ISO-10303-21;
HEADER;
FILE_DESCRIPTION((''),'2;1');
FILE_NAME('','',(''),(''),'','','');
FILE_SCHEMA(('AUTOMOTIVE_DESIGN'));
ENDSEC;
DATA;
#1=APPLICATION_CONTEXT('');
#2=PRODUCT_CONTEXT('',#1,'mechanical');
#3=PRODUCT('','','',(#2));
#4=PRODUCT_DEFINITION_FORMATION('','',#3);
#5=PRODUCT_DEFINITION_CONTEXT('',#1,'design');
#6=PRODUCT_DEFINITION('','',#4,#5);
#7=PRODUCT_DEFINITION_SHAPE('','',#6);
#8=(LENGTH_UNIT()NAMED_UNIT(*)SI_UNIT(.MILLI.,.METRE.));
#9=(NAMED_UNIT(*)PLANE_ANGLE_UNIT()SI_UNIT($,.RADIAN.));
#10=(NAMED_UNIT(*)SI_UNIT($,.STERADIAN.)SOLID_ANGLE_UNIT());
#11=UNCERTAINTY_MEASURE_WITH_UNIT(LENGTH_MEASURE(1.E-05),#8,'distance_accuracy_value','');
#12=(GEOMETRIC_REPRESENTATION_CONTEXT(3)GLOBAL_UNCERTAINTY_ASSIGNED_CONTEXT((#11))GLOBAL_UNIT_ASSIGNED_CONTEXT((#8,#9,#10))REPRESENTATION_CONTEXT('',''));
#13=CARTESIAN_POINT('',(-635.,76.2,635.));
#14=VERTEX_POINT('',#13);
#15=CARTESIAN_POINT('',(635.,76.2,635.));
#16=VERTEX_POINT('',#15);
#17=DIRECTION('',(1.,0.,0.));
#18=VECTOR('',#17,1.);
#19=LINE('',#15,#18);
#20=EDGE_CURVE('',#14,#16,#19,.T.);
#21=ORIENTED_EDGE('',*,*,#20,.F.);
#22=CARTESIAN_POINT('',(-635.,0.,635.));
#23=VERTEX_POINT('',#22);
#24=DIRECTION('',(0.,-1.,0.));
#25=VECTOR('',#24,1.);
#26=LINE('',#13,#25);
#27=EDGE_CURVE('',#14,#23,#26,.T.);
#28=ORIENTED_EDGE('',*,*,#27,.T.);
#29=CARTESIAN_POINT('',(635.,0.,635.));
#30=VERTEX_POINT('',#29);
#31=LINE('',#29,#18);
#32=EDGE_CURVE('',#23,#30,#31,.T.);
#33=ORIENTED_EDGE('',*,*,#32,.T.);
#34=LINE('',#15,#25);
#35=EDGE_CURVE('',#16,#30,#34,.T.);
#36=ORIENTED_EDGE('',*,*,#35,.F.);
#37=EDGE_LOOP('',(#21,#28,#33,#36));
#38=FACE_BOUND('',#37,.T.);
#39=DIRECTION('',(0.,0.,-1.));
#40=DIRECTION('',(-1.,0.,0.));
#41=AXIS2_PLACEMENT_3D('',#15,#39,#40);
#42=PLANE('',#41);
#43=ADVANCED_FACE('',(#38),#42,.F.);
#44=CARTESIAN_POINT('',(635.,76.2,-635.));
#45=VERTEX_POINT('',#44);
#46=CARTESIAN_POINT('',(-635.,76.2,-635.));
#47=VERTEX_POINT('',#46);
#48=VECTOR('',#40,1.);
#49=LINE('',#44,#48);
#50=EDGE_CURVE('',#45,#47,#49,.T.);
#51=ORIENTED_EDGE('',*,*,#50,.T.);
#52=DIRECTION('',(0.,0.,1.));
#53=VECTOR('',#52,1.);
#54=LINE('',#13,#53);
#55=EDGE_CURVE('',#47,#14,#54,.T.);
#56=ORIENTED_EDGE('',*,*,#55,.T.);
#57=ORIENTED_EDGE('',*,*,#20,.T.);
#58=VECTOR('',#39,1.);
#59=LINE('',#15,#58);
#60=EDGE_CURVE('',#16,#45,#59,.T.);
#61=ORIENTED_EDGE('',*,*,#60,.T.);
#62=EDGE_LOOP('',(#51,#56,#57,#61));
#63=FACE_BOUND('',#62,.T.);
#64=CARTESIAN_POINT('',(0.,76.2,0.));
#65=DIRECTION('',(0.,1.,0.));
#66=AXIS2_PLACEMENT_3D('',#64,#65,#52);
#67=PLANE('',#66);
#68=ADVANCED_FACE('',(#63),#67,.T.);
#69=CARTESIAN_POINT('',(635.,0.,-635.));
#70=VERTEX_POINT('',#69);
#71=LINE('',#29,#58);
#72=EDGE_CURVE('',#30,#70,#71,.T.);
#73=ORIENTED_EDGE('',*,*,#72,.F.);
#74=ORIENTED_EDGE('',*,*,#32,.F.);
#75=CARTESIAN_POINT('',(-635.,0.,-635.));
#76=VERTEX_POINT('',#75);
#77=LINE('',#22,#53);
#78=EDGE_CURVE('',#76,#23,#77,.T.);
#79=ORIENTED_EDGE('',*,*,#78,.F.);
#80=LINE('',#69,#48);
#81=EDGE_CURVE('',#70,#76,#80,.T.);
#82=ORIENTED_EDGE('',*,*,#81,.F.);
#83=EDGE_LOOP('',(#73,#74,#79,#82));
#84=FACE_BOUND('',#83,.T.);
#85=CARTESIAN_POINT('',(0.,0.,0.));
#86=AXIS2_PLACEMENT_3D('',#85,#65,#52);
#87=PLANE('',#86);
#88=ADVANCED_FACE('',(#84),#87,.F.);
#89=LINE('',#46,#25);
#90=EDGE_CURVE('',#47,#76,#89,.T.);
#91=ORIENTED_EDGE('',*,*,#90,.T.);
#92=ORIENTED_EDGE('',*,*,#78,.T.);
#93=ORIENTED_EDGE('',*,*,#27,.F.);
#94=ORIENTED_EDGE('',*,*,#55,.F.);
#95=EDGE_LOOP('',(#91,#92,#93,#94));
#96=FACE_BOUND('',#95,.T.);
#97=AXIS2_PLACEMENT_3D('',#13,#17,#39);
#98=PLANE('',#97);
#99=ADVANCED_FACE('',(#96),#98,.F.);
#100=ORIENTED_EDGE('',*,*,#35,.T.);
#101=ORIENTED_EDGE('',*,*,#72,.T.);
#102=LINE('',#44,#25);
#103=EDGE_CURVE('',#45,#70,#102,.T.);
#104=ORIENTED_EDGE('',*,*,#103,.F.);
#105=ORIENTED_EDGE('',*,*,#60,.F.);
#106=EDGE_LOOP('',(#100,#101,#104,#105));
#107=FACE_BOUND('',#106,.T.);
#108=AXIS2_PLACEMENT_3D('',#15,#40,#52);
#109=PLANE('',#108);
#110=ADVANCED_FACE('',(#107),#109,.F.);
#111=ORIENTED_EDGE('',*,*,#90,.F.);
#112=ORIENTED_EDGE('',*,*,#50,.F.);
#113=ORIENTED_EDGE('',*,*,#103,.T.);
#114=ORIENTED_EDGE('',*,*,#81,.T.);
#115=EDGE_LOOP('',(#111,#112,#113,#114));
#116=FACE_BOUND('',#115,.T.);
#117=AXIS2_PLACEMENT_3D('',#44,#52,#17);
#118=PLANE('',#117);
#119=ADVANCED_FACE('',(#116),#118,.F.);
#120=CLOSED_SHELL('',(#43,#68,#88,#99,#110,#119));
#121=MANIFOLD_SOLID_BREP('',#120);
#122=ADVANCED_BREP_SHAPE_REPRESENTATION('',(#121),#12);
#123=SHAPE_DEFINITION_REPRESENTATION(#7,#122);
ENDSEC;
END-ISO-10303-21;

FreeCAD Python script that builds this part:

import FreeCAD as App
import Part
import Sketcher
Q = App.Units.Quantity

doc = App.newDocument("Part")
body = doc.addObject("PartDesign::Body", "Body")

sketch1 = body.newObject("Sketcher::SketchObject", "Sketch")
sketch1.AttachmentSupport = (doc.getObject("XZ_Plane"), [""])
sketch1.MapMode = "FlatFace"
sketch1.addGeometry(Part.LineSegment(App.Vector(-635, -635, 0), App.Vector(-635, 635, 0)), False)
sketch1.addGeometry(Part.LineSegment(App.Vector(-635, 635, 0), App.Vector(635, 635, 0)), False)
sketch1.addGeometry(Part.LineSegment(App.Vector(635, 635, 0), App.Vector(635, -635, 0)), False)
sketch1.addGeometry(Part.LineSegment(App.Vector(635, -635, 0), App.Vector(-635, -635, 0)), False)
sketch1.addConstraint(Sketcher.Constraint("Coincident", 0, 2, 1, 1))
sketch1.addConstraint(Sketcher.Constraint("Coincident", 1, 2, 2, 1))
sketch1.addConstraint(Sketcher.Constraint("Coincident", 2, 2, 3, 1))
sketch1.addConstraint(Sketcher.Constraint("Coincident", 3, 2, 0, 1))
sketch1.addConstraint(Sketcher.Constraint("Vertical", 0))
sketch1.addConstraint(Sketcher.Constraint("Horizontal", 1))
sketch1.addConstraint(Sketcher.Constraint("Vertical", 2))
sketch1.addConstraint(Sketcher.Constraint("Horizontal", 3))
sketch1.addConstraint(Sketcher.Constraint("Symmetric", 0, 2, 2, 2, -1, 1))
sketch1.addConstraint(Sketcher.Constraint("Equal", 3, 0))
sketch1.addConstraint(Sketcher.Constraint("DistanceX", 1, 1, 1, 2, Q("50 in")))
pad1 = body.newObject("PartDesign::Pad", "Pad")
pad1.Profile = sketch1
pad1.Length = Q("3 in")
pad1.Reversed = True

doc.recompute()
